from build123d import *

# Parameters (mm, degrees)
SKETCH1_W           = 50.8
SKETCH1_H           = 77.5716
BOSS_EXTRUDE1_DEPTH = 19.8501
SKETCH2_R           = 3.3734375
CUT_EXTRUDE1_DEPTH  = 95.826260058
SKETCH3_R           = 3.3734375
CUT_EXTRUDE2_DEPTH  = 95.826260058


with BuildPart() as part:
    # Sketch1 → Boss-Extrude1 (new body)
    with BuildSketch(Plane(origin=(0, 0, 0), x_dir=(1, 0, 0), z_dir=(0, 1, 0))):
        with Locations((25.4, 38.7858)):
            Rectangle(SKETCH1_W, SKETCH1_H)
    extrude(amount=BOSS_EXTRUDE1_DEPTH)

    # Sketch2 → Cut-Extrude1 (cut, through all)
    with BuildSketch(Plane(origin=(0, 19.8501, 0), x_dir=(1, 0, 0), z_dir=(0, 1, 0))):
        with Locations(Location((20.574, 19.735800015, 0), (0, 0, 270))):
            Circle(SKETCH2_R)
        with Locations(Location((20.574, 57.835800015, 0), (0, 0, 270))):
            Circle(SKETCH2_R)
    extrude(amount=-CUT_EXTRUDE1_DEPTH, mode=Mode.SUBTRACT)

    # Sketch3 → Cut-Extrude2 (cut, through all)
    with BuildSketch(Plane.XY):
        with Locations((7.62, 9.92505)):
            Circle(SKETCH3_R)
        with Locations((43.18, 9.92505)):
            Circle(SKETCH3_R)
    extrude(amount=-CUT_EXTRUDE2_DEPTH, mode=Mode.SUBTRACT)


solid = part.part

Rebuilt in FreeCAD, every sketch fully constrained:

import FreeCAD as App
import Part
import Sketcher

V = App.Vector
Q = App.Units.Quantity

doc = App.newDocument("Part")
body = doc.addObject("PartDesign::Body", "Body")

sketch1 = body.newObject("Sketcher::SketchObject", "Sketch")
sketch1.AttachmentSupport = (doc.getObject("XZ_Plane"), [""])
sketch1.MapMode = "FlatFace"
sketch1.addGeometry([
    Part.LineSegment(V(0, -78, 0), V(0, 0, 0)),
    Part.LineSegment(V(0, 0, 0), V(51, 0, 0)),
    Part.LineSegment(V(51, 0, 0), V(51, -78, 0)),
    Part.LineSegment(V(51, -78, 0), V(0, -78, 0)),
], False)
sketch1.addConstraint([
    Sketcher.Constraint("Coincident", 0, 2, 1, 1),
    Sketcher.Constraint("Coincident", 1, 2, 2, 1),
    Sketcher.Constraint("Coincident", 2, 2, 3, 1),
    Sketcher.Constraint("Coincident", 3, 2, 0, 1),
    Sketcher.Constraint("Vertical", 0),
    Sketcher.Constraint("Horizontal", 1),
    Sketcher.Constraint("Vertical", 2),
    Sketcher.Constraint("Horizontal", 3),
    Sketcher.Constraint("Coincident", 0, 2, -1, 1),
    Sketcher.Constraint("DistanceX", 1, 1, 1, 2, Q("2 in")),
    Sketcher.Constraint("DistanceY", 0, 1, 0, 2, Q("3.054 in")),
])
pad1 = body.newObject("PartDesign::Pad", "Pad")
pad1.Profile = sketch1
pad1.Length = Q("0.7815 in")
pad1.Reversed = True

sketch2 = body.newObject("Sketcher::SketchObject", "Sketch001")
sketch2.AttachmentSupport = (doc.getObject("XZ_Plane"), [""])
sketch2.MapMode = "FlatFace"
sketch2.AttachmentOffset = App.Placement(V(0, 0, -0.7815 * 25.4), App.Rotation())
sketch2.addGeometry([
    Part.Circle(V(20.6, -19.7, 0), V(0, 0, 1), 3.4),
    Part.Circle(V(20.6, -57.8, 0), V(0, 0, 1), 3.4),
], False)
sketch2.addConstraint([
    Sketcher.Constraint("Equal", 0, 1),
    Sketcher.Constraint("Vertical", 0, 3, 1, 3),
    Sketcher.Constraint("Diameter", 0, Q("0.265625 in")),
    Sketcher.Constraint("DistanceY", 1, 3, 0, 3, Q("1.5 in")),
    Sketcher.Constraint("DistanceX", -1, 1, 0, 3, Q("0.81 in")),
    Sketcher.Constraint("DistanceY", 0, 3, -1, 1, Q("0.777 in")),
])
pocket1 = body.newObject("PartDesign::Pocket", "Pocket")
pocket1.Profile = sketch2
pocket1.Type = "ThroughAll"
pocket1.Reversed = True

sketch3 = body.newObject("Sketcher::SketchObject", "Sketch002")
sketch3.AttachmentSupport = (doc.getObject("XY_Plane"), [""])
sketch3.MapMode = "FlatFace"
sketch3.addGeometry([
    Part.Circle(V(7.6, 9.9, 0), V(0, 0, 1), 3.4),
    Part.Circle(V(43.2, 9.9, 0), V(0, 0, 1), 3.4),
], False)
sketch3.addConstraint([
    Sketcher.Constraint("Equal", 0, 1),
    Sketcher.Constraint("Horizontal", 0, 3, 1, 3),
    Sketcher.Constraint("Diameter", 0, Q("0.265625 in")),
    Sketcher.Constraint("DistanceX", -1, 1, 0, 3, Q("0.3 in")),
    Sketcher.Constraint("DistanceX", -1, 1, 1, 3, Q("1.7 in")),
    Sketcher.Constraint("DistanceY", -1, 1, 0, 3, 9.92505),
])
pocket2 = body.newObject("PartDesign::Pocket", "Pocket001")
pocket2.Profile = sketch3
pocket2.Type = "ThroughAll"

doc.recompute()
